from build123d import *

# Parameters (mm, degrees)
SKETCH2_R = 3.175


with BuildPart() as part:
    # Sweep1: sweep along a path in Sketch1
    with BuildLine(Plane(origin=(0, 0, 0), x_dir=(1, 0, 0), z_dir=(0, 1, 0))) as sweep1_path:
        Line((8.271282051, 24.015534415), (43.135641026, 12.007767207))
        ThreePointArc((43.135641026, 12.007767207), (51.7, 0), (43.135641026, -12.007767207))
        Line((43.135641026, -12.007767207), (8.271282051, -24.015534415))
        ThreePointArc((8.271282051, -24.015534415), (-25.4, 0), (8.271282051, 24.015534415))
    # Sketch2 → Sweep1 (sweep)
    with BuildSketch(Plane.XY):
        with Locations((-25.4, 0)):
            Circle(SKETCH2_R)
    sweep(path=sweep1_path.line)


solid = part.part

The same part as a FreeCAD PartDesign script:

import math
import FreeCAD as App
import Part
import Sketcher

V = App.Vector
Q = App.Units.Quantity

doc = App.newDocument("Part")
body = doc.addObject("PartDesign::Body", "Body")

# Sketch on XY plane
sketch1 = body.newObject("Sketcher::SketchObject", "Sketch")
sketch1.AttachmentSupport = (doc.getObject("XY_Plane"), [""])
sketch1.MapMode = "FlatFace"
sketch1.addGeometry(Part.Circle(V(-25.4, 0, 0), V(0, 0, 1), 3.2), False)
sketch1.addConstraint([
    Sketcher.Constraint("PointOnObject", 0, 3, -1),
    Sketcher.Constraint("Diameter", 0, Q("0.25 in")),
    Sketcher.Constraint("DistanceX", 0, 3, -1, 1, Q("1 in")),
])

# Sketch on XZ plane
sketch2 = body.newObject("Sketcher::SketchObject", "Sketch001")
sketch2.AttachmentSupport = (doc.getObject("XZ_Plane"), [""])
sketch2.MapMode = "FlatFace"
sketch2.addGeometry([
    Part.LineSegment(V(8, -24, 0), V(43, -12, 0)),
    Part.ArcOfCircle(Part.Circle(V(39, 0, 0), V(0, 0, 1), 13), math.radians(-71), math.radians(71)),
    Part.LineSegment(V(43, 12, 0), V(8, 24, 0)),
    Part.ArcOfCircle(Part.Circle(V(0, 0, 0), V(0, 0, 1), 25), math.radians(71), math.radians(289)),
], False)
sketch2.addConstraint([
    Sketcher.Constraint("Tangent", 0, 2, 1, 1),
    Sketcher.Constraint("Tangent", 1, 2, 2, 1),
    Sketcher.Constraint("Tangent", 2, 2, 3, 1),
    Sketcher.Constraint("Tangent", 3, 2, 0, 1),
    Sketcher.Constraint("Coincident", 3, 3, -1, 1),
    Sketcher.Constraint("PointOnObject", 1, 3, -1),
    Sketcher.Constraint("Radius", 3, Q("1 in")),
    Sketcher.Constraint("Radius", 1, Q("0.5 in")),
    Sketcher.Constraint("DistanceX", -1, 1, 1, 3, Q("39 mm")),
])
doc.recompute()

additivepipe = body.newObject("PartDesign::AdditivePipe", "AdditivePipe")
additivepipe.Profile = sketch1
additivepipe.Spine = (sketch2, ["Edge1", "Edge2", "Edge3", "Edge4"])

doc.recompute()
